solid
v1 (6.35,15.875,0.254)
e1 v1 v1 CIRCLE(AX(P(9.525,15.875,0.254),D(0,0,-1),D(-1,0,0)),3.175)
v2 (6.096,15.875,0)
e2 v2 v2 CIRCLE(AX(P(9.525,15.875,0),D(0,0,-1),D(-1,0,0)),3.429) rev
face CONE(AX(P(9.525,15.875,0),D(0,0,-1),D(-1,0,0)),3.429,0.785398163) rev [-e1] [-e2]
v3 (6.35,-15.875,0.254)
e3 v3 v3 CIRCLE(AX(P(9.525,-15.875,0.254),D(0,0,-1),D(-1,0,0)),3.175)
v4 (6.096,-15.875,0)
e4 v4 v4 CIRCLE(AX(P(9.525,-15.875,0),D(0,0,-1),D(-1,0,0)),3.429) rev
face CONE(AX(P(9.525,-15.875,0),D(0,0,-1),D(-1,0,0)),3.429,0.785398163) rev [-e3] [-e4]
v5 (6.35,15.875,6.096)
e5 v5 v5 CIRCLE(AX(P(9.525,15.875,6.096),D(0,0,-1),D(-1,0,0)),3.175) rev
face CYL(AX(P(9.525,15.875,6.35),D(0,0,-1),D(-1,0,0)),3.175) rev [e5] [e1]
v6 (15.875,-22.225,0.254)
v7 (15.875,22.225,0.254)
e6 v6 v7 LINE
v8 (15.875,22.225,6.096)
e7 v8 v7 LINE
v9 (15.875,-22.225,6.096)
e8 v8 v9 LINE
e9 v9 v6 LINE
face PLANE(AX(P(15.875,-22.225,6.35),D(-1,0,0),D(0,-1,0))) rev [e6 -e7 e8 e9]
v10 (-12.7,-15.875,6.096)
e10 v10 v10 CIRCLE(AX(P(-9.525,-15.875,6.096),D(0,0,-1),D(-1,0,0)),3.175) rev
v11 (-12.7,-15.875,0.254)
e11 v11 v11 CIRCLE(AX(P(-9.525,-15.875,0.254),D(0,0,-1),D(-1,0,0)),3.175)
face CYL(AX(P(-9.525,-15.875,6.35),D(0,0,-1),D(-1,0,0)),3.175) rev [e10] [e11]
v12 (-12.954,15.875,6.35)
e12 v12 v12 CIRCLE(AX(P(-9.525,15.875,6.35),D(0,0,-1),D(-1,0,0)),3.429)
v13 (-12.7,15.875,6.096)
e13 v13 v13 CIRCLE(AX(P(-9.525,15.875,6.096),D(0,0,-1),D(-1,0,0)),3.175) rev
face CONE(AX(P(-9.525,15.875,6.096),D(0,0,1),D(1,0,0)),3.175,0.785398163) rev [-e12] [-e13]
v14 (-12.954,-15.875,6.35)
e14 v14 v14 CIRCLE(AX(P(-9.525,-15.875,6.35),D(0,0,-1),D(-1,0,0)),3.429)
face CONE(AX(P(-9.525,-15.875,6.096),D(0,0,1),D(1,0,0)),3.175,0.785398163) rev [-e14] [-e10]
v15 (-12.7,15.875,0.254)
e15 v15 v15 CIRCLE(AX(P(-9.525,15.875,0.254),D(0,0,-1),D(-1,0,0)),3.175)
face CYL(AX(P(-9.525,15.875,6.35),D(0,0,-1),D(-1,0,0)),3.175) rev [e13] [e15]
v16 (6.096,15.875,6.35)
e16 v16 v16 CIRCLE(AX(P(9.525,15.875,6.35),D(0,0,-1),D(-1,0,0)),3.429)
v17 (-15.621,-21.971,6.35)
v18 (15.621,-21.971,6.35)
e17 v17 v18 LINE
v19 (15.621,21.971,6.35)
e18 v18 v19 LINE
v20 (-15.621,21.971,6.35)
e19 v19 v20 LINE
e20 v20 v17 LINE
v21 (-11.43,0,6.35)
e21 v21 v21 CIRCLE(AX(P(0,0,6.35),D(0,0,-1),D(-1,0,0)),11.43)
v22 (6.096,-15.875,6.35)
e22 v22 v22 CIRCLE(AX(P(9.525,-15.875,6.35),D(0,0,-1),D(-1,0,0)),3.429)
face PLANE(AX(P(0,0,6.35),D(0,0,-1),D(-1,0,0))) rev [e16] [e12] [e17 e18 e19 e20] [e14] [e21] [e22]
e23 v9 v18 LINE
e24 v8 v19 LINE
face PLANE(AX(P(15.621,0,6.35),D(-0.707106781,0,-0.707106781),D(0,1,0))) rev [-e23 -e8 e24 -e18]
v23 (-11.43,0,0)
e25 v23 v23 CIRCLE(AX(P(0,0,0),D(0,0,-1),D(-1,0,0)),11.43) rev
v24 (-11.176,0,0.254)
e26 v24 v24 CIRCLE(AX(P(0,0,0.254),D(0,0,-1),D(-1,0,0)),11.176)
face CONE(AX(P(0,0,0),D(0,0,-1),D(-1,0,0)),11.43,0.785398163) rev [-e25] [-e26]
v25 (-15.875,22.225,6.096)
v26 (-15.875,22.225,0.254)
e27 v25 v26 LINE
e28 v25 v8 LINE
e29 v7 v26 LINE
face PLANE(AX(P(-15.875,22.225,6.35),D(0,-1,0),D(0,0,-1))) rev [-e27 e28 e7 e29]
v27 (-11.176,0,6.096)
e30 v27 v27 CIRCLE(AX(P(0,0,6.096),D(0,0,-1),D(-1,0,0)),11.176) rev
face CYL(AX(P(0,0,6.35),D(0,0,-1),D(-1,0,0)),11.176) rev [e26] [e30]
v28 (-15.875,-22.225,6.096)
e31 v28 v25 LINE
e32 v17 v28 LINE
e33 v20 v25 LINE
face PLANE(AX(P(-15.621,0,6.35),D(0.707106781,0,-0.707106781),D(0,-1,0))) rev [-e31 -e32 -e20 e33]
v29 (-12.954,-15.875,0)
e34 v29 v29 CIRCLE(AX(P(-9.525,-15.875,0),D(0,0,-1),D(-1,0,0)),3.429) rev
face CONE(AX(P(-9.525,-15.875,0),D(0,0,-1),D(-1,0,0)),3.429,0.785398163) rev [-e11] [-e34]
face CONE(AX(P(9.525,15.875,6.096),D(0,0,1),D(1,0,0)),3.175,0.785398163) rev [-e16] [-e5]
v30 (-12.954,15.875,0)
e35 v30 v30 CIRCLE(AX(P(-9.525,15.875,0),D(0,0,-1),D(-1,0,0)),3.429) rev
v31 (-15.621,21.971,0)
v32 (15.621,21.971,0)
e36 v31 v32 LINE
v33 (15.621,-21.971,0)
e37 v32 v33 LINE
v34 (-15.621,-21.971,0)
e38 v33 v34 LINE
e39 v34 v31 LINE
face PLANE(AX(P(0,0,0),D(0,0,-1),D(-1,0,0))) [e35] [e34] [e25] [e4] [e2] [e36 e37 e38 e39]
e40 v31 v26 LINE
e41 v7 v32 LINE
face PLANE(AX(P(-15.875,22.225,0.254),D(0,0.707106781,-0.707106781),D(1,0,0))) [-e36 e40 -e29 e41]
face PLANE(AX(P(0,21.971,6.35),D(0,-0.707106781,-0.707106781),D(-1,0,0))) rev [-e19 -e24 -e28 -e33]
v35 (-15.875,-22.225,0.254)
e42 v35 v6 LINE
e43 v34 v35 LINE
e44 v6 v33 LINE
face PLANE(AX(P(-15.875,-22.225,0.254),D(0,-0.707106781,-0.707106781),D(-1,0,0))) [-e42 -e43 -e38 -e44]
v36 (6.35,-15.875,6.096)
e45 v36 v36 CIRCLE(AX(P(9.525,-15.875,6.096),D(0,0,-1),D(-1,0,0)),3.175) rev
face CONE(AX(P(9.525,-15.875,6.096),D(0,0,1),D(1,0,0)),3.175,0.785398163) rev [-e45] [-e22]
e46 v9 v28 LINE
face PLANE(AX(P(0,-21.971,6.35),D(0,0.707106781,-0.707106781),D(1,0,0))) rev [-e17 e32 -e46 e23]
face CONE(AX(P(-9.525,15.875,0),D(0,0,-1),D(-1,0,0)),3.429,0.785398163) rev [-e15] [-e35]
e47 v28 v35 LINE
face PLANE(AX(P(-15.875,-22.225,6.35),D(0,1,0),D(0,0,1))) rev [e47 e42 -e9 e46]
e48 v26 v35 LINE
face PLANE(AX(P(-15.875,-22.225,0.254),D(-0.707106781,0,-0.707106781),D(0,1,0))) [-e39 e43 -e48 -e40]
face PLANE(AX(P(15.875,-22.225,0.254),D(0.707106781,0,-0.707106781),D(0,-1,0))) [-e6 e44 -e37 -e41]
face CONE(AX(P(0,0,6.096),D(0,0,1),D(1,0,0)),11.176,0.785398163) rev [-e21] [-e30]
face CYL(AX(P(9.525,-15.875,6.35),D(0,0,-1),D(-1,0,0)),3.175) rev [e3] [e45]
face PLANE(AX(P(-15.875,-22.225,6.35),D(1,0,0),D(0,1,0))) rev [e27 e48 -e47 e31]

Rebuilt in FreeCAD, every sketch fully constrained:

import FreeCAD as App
import Part
import Sketcher
Q = App.Units.Quantity


def edges_at(feature, points):
    """Names of the edges that pass closest to the given points."""
    edges = feature.Shape.Edges
    near = lambda p: min(range(len(edges)), key=lambda i: edges[i].distToShape(Part.Vertex(*p))[0])
    return sorted({f"Edge{near(p) + 1}" for p in points})

doc = App.newDocument("Part")
params = doc.addObject("Spreadsheet::Sheet", "Params")
for row, (alias, value) in enumerate([
    ("sketch1_diameter", "0.25 in"),
    ("sketch1_diameter2", "0.88 in"),
    ("sketch1_width", "1.25 in"),
    ("sketch1_height", "1.75 in"),
    ("pad1_length", "0.25 in"),
    ("chamfer_size", "0.01 in"),
], start=1):
    params.set(f"A{row}", alias)
    params.set(f"B{row}", "=" + value)
    params.setAlias(f"B{row}", alias)

body = doc.addObject("PartDesign::Body", "Body")

# Sketch on XY plane
sketch1 = body.newObject("Sketcher::SketchObject", "Sketch")
sketch1.AttachmentSupport = (doc.getObject("XY_Plane"), [""])
sketch1.MapMode = "FlatFace"
sketch1.addGeometry([
    Part.LineSegment(App.Vector(-15.875, 22.225, 0), App.Vector(-15.875, -22.225, 0)),  # 0
    Part.LineSegment(App.Vector(-15.875, -22.225, 0), App.Vector(15.875, -22.225, 0)),  # 1
    Part.LineSegment(App.Vector(15.875, -22.225, 0), App.Vector(15.875, 22.225, 0)),  # 2
    Part.LineSegment(App.Vector(15.875, 22.225, 0), App.Vector(-15.875, 22.225, 0)),  # 3
    Part.Circle(App.Vector(-9.525, -15.875, 0), App.Vector(0, 0, 1), 3.175),  # 4
    Part.Circle(App.Vector(9.525, -15.875, 0), App.Vector(0, 0, 1), 3.175),  # 5
    Part.Circle(App.Vector(0, 0, 0), App.Vector(0, 0, 1), 11.176),  # 6
    Part.Circle(App.Vector(-9.525, 15.875, 0), App.Vector(0, 0, 1), 3.175),  # 7
    Part.Circle(App.Vector(9.525, 15.875, 0), App.Vector(0, 0, 1), 3.175),  # 8
], False)
sketch1.addConstraint([
    Sketcher.Constraint("Coincident", 0, 2, 1, 1),
    Sketcher.Constraint("Coincident", 1, 2, 2, 1),
    Sketcher.Constraint("Coincident", 2, 2, 3, 1),
    Sketcher.Constraint("Coincident", 3, 2, 0, 1),
    Sketcher.Constraint("Vertical", 0),
    Sketcher.Constraint("Horizontal", 1),
    Sketcher.Constraint("Vertical", 2),
    Sketcher.Constraint("Horizontal", 3),
    Sketcher.Constraint("Coincident", 6, 3, -1, 1),
    Sketcher.Constraint("Equal", 4, 5),
    Sketcher.Constraint("Equal", 5, 7),
    Sketcher.Constraint("Equal", 7, 8),
    Sketcher.Constraint("Symmetric", 5, 3, 7, 3, -1, 1),
    Sketcher.Constraint("Symmetric", 4, 3, 8, 3, -1, 1),
    Sketcher.Constraint("Symmetric", 0, 2, 2, 2, -1, 1),
    Sketcher.Constraint("Symmetric", 4, 3, 5, 3, -2),
    Sketcher.Constraint("Diameter", 4, Q("0.25 in")),
    Sketcher.Constraint("Diameter", 6, Q("0.88 in")),
    Sketcher.Constraint("DistanceX", 0, 2, 5, 3, Q("1 in")),
    Sketcher.Constraint("DistanceX", 1, 1, 1, 2, Q("1.25 in")),
    Sketcher.Constraint("DistanceY", 0, 2, 0, 1, Q("1.75 in")),
    Sketcher.Constraint("DistanceY", 0, 2, 7, 3, Q("1.5 in")),
])
sketch1.setExpression("Constraints[16]", "Params.sketch1_diameter")
sketch1.setExpression("Constraints[17]", "Params.sketch1_diameter2")
sketch1.setExpression("Constraints[19]", "Params.sketch1_width")
sketch1.setExpression("Constraints[20]", "Params.sketch1_height")
pad1 = body.newObject("PartDesign::Pad", "Pad")
pad1.Profile = sketch1
pad1.setExpression("Length", "Params.pad1_length")
doc.recompute()

chamfer = body.newObject("PartDesign::Chamfer", "Chamfer")
chamfer.Base = (pad1, edges_at(pad1, [
    (-15.875, 0, 6.35),
    (-12.7, 15.875, 0),
    (-12.7, 15.875, 6.35),
    (0, -22.225, 6.35),
    (6.35, 15.875, 0),
    (6.35, 15.875, 6.35),
    (-12.7, -15.875, 0),
    (-12.7, -15.875, 6.35),
    (6.35, -15.875, 0),
    (6.35, -15.875, 6.35),
    (-11.176, 0, 0),
    (-11.176, 0, 6.35),
    (15.875, 0, 6.35),
    (0, -22.225, 0),
    (-15.875, 0, 0),
    (0, 22.225, 0),
    (15.875, 0, 0),
    (0, 22.225, 6.35),
]))
chamfer.setExpression("Size", "Params.chamfer_size")

doc.recompute()
